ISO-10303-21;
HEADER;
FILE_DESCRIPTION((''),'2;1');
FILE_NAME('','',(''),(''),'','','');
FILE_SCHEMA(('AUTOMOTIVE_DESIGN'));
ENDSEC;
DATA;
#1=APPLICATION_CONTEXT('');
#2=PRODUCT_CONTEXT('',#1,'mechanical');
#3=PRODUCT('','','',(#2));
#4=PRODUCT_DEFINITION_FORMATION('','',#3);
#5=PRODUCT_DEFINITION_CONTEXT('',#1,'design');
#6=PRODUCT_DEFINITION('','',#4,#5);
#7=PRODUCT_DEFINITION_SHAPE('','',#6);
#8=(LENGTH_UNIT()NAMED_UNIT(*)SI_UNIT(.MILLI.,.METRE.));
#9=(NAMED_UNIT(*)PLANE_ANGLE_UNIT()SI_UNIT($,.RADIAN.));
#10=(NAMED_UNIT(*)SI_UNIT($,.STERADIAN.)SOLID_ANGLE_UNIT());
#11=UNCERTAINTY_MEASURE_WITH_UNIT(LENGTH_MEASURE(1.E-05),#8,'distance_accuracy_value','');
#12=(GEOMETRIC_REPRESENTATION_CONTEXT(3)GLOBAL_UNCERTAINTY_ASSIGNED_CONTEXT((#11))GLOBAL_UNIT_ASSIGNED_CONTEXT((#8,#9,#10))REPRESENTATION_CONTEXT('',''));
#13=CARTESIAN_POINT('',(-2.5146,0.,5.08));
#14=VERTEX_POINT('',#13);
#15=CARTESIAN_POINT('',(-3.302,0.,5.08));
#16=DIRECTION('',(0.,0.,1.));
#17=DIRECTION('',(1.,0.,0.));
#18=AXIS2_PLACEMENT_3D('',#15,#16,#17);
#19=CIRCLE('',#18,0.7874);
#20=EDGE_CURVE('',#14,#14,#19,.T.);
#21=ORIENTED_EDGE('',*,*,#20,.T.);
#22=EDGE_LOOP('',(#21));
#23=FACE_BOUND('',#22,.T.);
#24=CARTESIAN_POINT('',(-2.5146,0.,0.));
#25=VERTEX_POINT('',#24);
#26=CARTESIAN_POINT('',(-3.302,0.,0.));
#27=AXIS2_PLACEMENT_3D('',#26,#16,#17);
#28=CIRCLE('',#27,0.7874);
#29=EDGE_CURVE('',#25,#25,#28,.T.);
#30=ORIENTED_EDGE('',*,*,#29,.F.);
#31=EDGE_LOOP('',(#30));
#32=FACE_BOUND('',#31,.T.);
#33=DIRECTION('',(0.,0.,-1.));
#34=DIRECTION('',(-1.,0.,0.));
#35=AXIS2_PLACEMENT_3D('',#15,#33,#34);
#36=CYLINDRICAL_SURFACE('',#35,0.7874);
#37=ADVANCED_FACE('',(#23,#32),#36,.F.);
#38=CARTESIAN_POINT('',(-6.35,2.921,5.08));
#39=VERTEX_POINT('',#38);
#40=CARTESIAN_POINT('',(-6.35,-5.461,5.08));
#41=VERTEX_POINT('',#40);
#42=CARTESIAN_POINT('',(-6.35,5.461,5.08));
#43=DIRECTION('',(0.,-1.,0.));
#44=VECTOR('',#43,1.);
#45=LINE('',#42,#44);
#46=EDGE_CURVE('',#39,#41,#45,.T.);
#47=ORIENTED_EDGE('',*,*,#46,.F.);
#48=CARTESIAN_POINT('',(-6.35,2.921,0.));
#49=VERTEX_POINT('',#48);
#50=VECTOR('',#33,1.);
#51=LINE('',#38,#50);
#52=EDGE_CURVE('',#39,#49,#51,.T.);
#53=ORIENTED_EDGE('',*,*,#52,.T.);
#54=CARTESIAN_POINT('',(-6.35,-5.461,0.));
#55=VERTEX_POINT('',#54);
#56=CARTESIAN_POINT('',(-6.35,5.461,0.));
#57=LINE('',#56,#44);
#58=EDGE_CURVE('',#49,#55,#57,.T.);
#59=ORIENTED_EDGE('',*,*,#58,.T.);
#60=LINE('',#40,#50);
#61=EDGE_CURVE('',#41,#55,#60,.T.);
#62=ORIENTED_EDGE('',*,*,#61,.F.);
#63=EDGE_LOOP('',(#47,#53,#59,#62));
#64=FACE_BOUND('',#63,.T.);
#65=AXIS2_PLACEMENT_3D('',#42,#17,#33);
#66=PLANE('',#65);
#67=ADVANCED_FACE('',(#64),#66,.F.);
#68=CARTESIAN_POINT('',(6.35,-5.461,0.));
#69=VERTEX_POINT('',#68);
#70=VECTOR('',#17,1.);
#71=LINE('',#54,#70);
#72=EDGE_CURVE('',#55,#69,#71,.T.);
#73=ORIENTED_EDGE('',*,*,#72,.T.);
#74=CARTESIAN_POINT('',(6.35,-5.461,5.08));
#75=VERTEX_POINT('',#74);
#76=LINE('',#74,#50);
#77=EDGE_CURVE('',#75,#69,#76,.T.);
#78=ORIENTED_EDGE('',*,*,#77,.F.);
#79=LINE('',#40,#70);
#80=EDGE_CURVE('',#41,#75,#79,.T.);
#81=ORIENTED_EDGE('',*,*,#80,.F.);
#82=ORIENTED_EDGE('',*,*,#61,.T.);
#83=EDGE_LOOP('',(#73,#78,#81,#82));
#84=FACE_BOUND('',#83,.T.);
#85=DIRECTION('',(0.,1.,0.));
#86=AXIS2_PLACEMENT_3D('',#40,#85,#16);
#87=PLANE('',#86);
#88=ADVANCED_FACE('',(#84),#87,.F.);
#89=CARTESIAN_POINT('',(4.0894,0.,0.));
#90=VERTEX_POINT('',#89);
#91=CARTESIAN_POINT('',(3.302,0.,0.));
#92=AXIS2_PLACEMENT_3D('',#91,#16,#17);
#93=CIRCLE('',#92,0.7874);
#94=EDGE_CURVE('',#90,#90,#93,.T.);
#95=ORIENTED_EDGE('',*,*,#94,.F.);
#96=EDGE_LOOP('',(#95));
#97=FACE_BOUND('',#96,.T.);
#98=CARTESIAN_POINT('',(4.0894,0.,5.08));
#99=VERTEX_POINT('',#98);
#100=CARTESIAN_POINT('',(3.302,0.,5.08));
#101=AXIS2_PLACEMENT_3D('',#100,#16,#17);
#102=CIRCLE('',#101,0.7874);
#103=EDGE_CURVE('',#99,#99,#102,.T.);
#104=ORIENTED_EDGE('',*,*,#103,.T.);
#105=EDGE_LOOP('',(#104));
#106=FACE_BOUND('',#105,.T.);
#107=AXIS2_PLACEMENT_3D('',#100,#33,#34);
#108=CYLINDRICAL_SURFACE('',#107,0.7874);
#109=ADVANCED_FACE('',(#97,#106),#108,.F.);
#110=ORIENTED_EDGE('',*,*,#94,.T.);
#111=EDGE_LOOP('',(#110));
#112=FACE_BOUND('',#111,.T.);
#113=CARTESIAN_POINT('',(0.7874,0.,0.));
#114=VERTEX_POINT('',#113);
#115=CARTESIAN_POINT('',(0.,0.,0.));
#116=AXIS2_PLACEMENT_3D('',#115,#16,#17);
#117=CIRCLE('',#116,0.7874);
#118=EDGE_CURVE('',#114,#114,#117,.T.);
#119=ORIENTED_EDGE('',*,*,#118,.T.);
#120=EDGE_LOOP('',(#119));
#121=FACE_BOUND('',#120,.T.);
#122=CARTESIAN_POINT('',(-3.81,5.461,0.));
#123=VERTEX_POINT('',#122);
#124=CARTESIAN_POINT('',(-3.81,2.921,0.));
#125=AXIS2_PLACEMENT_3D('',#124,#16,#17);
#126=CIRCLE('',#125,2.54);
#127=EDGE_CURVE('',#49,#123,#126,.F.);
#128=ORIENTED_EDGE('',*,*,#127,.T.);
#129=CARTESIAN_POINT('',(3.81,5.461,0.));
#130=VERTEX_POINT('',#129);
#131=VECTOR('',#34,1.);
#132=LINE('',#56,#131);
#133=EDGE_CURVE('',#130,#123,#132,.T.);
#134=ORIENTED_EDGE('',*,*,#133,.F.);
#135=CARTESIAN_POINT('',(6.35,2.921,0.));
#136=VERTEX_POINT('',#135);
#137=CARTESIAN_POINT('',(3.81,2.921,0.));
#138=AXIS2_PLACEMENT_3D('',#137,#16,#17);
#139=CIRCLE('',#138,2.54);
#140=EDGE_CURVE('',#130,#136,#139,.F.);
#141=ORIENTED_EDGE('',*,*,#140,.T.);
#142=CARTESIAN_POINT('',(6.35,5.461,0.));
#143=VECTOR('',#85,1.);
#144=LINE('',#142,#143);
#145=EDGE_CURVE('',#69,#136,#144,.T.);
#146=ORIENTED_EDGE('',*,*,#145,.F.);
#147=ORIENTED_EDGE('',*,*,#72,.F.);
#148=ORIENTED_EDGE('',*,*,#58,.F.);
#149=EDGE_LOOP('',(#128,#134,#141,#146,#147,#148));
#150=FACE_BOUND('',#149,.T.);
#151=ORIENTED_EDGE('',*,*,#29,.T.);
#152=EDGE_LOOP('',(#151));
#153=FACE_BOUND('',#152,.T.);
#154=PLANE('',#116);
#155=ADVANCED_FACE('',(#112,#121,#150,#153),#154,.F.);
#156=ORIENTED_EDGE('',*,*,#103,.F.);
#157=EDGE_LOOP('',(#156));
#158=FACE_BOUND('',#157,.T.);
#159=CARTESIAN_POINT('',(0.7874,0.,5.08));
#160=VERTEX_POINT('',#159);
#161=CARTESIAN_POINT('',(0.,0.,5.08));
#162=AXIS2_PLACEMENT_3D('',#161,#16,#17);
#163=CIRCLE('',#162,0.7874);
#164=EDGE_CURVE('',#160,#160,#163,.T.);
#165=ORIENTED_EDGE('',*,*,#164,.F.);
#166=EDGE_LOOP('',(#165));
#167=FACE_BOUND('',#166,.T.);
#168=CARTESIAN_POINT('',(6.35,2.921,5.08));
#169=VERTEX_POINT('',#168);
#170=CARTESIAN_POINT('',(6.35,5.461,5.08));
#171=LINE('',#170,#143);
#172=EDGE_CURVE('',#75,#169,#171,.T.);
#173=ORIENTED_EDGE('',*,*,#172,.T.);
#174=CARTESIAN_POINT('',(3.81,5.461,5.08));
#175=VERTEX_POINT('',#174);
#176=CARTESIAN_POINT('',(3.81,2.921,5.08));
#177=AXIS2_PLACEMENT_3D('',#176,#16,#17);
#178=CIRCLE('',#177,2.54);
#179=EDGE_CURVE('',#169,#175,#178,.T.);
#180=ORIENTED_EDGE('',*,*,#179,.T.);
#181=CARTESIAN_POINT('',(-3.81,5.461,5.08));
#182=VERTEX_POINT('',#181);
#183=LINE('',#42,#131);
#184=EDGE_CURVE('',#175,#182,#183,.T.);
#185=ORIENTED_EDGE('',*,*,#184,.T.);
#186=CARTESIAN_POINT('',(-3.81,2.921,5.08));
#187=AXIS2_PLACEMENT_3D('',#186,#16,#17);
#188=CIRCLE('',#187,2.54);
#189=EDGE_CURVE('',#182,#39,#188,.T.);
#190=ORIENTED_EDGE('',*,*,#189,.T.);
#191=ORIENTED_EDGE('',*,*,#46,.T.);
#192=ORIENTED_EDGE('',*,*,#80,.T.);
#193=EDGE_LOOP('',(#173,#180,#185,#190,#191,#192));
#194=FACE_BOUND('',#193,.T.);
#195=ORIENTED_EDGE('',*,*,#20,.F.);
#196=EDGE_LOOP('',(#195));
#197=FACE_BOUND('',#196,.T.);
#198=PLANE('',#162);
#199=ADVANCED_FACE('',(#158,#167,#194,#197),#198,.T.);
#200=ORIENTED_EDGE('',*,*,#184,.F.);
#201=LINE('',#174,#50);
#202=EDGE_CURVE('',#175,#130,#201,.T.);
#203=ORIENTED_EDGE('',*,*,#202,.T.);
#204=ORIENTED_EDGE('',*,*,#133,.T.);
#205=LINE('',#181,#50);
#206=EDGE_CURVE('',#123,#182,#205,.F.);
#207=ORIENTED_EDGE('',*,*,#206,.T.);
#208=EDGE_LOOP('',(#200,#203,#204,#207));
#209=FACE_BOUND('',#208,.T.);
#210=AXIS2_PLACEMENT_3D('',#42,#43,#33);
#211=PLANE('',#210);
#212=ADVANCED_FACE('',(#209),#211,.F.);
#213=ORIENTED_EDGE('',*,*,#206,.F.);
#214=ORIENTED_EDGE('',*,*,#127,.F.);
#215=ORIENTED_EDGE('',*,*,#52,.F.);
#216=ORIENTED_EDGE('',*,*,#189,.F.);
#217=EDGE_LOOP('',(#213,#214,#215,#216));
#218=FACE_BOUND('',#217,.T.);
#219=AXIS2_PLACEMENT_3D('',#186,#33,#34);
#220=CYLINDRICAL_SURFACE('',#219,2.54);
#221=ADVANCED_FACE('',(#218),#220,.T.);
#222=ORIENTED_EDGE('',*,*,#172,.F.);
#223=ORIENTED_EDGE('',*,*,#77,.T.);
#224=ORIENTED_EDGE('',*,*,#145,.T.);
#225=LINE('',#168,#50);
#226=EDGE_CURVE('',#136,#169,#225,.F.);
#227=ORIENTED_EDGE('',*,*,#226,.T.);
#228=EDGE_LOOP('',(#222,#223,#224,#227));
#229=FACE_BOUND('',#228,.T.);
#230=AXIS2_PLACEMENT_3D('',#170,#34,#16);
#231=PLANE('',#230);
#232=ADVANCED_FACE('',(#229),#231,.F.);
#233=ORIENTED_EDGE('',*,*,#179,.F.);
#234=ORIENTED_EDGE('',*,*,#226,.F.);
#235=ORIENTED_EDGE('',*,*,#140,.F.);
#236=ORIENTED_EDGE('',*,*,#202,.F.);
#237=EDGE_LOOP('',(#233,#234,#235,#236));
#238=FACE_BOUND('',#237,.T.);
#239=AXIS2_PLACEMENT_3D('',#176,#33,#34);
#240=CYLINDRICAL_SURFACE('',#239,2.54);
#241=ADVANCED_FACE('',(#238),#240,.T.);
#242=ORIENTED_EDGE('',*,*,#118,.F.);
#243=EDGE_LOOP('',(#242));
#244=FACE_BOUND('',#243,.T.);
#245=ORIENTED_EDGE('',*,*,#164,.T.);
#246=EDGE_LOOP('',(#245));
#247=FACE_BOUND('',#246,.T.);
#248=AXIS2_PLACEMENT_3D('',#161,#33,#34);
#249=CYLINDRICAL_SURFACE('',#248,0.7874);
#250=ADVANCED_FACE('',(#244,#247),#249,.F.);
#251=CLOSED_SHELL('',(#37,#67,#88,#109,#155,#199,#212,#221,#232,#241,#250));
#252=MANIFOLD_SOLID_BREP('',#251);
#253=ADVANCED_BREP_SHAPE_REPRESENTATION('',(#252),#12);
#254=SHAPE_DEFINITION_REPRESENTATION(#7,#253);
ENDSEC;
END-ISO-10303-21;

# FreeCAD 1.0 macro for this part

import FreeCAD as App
import Part
import Sketcher
Q = App.Units.Quantity


def edges_at(feature, points):
    """Names of the edges that pass closest to the given points."""
    edges = feature.Shape.Edges
    near = lambda p: min(range(len(edges)), key=lambda i: edges[i].distToShape(Part.Vertex(*p))[0])
    return sorted({f"Edge{near(p) + 1}" for p in points})

doc = App.newDocument("Part")
body = doc.addObject("PartDesign::Body", "Body")

# Sketch on XY plane
sketch1 = doc.addObject("Sketcher::SketchObject", "Sketch")
body.addObject(sketch1)
sketch1.AttachmentSupport = (doc.XY_Plane, [""])
sketch1.MapMode = "FlatFace"
sketch1.addGeometry([
    Part.LineSegment(App.Vector(-6, 5, 0), App.Vector(-6, -5, 0)),
    Part.LineSegment(App.Vector(-6, -5, 0), App.Vector(6, -5, 0)),
    Part.LineSegment(App.Vector(6, -5, 0), App.Vector(6, 5, 0)),
    Part.LineSegment(App.Vector(6, 5, 0), App.Vector(-6, 5, 0)),
], False)
sketch1.addConstraint([
    Sketcher.Constraint("Coincident", 0, 2, 1, 1),
    Sketcher.Constraint("Coincident", 1, 2, 2, 1),
    Sketcher.Constraint("Coincident", 2, 2, 3, 1),
    Sketcher.Constraint("Coincident", 3, 2, 0, 1),
    Sketcher.Constraint("Vertical", 0),
    Sketcher.Constraint("Horizontal", 1),
    Sketcher.Constraint("Vertical", 2),
    Sketcher.Constraint("Horizontal", 3),
    Sketcher.Constraint("Symmetric", 0, 2, 2, 2, -1, 1),
    Sketcher.Constraint("DistanceX", 1, 1, 1, 2, Q("0.5 in")),
    Sketcher.Constraint("DistanceY", 0, 2, 0, 1, Q("0.43 in")),
])
pad1 = doc.addObject("PartDesign::Pad", "Pad")
body.addObject(pad1)
pad1.Profile = sketch1
pad1.Length = Q("0.2 in")

# Sketch on XY plane
sketch2 = doc.addObject("Sketcher::SketchObject", "Sketch001")
body.addObject(sketch2)
sketch2.AttachmentSupport = (doc.XY_Plane, [""])
sketch2.MapMode = "FlatFace"
sketch2.addGeometry([
    Part.Circle(App.Vector(0, 0, 0), App.Vector(0, 0, 1), 0.8),
    Part.Circle(App.Vector(3.3, 0, 0), App.Vector(0, 0, 1), 0.8),
    Part.Circle(App.Vector(-3.3, 0, 0), App.Vector(0, 0, 1), 0.8),
], False)
sketch2.addConstraint([
    Sketcher.Constraint("Coincident", 0, 3, -1, 1),
    Sketcher.Constraint("Equal", 0, 1),
    Sketcher.Constraint("Equal", 1, 2),
    Sketcher.Constraint("Symmetric", 1, 3, 2, 3, -1, 1),
    Sketcher.Constraint("PointOnObject", 1, 3, -1),
    Sketcher.Constraint("Diameter", 0, Q("0.062 in")),
    Sketcher.Constraint("DistanceX", -1, 1, 1, 3, Q("0.13 in")),
])
pocket1 = doc.addObject("PartDesign::Pocket", "Pocket")
body.addObject(pocket1)
pocket1.Profile = sketch2
pocket1.Length = Q("0.2 in")
pocket1.Reversed = True
doc.recompute()

fillet = doc.addObject("PartDesign::Fillet", "Fillet")
body.addObject(fillet)
fillet.Base = (pocket1, edges_at(pocket1, [(-6.35, 5.461, 2.54), (6.35, 5.461, 2.54)]))
fillet.Radius = Q("0.1 in")

doc.recompute()
